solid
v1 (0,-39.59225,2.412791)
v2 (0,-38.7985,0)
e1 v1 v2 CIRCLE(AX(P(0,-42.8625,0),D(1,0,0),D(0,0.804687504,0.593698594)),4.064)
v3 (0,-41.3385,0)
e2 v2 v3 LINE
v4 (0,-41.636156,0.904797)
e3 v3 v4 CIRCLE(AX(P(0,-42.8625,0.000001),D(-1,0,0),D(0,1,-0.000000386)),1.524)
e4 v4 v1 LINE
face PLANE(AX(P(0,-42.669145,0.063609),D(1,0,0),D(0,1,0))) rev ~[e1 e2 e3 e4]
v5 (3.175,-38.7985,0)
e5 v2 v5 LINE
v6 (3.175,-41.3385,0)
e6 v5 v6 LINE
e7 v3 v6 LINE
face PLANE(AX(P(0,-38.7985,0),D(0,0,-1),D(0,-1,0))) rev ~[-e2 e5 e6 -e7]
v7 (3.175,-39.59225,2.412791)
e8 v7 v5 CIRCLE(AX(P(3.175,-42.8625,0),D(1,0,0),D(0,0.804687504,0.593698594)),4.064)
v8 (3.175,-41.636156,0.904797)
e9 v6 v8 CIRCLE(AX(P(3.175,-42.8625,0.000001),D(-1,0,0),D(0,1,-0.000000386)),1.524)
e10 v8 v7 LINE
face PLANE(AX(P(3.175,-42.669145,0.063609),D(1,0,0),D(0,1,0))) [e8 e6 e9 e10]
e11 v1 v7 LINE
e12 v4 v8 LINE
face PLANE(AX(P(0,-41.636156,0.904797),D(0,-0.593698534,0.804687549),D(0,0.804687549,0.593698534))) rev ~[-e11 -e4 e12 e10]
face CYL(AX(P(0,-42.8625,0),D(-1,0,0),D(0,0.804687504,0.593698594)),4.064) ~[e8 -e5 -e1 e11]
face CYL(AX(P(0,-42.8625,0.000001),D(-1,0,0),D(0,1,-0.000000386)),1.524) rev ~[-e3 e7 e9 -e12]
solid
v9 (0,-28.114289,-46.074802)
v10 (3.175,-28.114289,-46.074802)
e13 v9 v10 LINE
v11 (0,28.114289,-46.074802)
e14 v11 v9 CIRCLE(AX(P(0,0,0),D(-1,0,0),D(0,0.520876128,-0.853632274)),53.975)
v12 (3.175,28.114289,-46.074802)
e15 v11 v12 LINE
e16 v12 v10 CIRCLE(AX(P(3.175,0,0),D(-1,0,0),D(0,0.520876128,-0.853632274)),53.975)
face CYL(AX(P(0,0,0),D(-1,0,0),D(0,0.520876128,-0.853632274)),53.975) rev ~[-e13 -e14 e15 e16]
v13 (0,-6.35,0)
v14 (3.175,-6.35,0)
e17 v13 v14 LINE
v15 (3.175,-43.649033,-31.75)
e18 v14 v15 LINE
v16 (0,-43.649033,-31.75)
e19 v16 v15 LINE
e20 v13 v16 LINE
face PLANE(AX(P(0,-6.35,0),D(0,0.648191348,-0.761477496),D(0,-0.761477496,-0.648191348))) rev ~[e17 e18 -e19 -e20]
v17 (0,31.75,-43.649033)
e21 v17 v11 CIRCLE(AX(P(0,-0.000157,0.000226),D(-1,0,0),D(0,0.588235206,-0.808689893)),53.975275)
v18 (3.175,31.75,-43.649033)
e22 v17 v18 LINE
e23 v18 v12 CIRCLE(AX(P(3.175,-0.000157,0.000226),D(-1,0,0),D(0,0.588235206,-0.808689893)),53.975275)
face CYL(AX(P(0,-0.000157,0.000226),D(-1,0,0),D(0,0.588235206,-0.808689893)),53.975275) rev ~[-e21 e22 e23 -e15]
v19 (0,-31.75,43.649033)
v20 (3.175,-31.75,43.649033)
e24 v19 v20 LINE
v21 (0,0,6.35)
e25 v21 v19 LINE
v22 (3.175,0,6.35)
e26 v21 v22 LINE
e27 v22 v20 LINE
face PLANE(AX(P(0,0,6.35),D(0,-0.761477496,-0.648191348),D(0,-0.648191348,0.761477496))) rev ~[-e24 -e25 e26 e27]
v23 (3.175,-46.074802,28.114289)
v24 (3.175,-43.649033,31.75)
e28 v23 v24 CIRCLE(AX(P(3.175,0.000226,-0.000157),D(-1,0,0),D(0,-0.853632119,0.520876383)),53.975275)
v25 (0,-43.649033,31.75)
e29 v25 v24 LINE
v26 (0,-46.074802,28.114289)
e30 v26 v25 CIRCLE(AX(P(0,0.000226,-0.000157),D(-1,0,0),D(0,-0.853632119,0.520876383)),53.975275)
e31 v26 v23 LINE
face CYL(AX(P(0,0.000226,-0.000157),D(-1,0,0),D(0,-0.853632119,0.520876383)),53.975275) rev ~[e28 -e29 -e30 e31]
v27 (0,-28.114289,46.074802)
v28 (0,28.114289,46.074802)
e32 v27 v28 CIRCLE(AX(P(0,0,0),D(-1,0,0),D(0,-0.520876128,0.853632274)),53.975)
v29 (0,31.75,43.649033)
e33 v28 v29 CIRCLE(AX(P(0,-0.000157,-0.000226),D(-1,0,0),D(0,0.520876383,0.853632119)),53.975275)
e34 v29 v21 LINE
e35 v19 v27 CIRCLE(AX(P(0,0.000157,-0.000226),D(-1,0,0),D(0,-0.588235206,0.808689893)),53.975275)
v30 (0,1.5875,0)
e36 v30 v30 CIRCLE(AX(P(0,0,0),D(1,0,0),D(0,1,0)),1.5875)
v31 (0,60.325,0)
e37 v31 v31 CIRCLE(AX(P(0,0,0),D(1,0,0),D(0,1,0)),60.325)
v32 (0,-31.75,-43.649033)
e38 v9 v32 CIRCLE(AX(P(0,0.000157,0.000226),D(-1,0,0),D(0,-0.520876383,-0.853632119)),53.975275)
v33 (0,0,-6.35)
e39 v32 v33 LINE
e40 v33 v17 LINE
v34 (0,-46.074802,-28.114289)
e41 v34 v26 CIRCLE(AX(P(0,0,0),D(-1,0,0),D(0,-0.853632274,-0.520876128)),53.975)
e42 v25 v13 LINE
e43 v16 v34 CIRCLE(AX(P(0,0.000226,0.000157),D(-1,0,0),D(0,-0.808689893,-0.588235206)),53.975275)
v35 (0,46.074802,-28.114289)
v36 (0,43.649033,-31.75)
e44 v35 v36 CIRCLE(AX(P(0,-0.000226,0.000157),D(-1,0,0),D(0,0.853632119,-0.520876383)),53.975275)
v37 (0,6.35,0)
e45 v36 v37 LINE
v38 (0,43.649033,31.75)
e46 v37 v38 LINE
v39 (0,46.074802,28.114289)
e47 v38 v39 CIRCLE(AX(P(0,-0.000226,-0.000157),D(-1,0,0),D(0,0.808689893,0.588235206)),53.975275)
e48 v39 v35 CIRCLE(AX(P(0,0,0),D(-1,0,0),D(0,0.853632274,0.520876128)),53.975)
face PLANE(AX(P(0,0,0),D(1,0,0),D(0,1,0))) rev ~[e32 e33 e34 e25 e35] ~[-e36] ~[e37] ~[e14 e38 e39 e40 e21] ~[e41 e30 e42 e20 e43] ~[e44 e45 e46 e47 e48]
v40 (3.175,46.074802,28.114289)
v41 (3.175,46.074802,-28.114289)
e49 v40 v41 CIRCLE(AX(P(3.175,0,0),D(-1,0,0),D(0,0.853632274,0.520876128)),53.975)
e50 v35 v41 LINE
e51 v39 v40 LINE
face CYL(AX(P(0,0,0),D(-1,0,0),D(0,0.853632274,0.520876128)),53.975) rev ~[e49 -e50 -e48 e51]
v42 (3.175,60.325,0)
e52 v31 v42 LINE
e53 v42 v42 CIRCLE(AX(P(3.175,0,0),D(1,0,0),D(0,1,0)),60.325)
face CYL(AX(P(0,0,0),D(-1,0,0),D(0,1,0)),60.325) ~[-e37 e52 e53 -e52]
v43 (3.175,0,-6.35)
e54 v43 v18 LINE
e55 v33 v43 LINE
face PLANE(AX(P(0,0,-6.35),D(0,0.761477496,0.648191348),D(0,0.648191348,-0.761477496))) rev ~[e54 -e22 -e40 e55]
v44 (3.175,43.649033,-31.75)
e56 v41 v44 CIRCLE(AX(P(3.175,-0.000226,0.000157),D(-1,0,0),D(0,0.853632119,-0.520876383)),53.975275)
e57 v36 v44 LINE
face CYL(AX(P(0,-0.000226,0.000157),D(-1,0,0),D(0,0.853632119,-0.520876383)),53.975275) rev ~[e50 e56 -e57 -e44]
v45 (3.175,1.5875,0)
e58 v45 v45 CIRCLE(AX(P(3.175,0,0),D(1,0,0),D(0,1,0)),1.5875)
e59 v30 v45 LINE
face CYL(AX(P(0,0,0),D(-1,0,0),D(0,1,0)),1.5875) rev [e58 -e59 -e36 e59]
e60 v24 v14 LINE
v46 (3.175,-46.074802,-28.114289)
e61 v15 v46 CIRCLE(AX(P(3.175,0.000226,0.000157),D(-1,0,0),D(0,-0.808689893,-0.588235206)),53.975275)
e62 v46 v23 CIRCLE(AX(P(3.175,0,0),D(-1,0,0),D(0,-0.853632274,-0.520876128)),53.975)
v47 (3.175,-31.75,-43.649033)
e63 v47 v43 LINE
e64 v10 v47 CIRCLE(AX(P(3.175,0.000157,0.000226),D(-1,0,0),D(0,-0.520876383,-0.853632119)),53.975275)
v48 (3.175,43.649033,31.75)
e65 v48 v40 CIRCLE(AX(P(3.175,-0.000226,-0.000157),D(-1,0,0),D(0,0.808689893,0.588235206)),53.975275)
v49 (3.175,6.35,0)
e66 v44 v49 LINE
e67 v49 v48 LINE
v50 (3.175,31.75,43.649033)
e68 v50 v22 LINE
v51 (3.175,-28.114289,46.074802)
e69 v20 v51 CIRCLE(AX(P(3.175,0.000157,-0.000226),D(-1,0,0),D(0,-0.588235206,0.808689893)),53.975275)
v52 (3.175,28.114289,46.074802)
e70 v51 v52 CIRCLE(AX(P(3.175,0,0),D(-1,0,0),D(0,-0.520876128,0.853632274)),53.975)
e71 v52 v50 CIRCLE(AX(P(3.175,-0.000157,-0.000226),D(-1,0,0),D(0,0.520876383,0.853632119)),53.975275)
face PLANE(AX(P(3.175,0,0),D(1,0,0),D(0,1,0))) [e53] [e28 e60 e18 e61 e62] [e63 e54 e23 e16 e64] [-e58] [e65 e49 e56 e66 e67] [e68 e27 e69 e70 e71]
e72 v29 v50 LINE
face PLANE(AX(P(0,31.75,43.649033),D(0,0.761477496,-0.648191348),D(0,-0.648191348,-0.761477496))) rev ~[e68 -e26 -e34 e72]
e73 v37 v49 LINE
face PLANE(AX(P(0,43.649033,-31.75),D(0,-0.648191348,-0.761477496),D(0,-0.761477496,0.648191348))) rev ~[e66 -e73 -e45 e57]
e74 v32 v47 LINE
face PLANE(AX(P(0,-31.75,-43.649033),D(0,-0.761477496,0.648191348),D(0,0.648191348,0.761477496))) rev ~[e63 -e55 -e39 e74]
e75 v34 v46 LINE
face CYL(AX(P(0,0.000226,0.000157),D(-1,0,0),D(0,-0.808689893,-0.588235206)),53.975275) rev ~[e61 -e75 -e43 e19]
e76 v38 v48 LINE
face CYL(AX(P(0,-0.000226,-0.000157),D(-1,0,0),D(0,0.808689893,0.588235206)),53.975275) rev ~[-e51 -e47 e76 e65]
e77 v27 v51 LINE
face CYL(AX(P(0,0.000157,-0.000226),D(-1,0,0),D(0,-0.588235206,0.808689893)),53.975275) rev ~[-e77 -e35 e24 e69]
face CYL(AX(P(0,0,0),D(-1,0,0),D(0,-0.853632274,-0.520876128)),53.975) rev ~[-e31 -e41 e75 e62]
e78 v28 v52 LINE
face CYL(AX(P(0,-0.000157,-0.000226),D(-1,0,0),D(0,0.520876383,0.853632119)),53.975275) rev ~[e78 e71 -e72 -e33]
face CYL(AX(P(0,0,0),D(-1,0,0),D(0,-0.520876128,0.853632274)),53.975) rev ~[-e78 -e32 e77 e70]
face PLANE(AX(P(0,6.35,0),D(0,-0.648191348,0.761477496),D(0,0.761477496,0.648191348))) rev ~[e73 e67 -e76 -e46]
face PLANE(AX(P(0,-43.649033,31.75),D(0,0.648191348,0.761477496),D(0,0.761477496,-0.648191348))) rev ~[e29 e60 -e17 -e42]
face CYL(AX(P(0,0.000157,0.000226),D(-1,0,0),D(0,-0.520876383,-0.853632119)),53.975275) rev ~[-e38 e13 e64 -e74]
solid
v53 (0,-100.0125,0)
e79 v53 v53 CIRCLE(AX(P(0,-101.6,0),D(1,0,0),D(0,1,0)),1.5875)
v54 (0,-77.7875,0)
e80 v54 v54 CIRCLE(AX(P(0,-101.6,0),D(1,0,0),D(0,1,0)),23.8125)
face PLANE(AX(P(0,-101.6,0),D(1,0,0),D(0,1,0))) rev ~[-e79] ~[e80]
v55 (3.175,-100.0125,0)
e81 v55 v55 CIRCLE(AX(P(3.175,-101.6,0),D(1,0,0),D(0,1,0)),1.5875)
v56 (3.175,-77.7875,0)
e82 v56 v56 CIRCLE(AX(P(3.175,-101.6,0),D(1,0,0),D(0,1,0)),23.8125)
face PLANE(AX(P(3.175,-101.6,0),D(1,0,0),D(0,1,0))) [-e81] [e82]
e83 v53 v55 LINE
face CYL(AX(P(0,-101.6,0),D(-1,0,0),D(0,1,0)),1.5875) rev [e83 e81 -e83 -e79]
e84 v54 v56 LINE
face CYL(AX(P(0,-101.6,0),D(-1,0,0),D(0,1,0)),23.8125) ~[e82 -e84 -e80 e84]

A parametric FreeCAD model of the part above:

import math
import FreeCAD as App
import Part
import Sketcher

V = App.Vector
Q = App.Units.Quantity

doc = App.newDocument("Part")
body = doc.addObject("PartDesign::Body", "Body")

sketch1 = body.newObject("Sketcher::SketchObject", "Sketch")
sketch1.AttachmentSupport = (doc.getObject("YZ_Plane"), [""])
sketch1.MapMode = "FlatFace"
sketch1.addGeometry([
    Part.Circle(V(0, 0, 0), V(0, 0, 1), 60.325),
    Part.ArcOfCircle(Part.Circle(V(0.000157, 0.000226, 0), V(0, 0, 1), 53.975275), math.radians(-126.031873), math.radians(-121.391056)),
    Part.LineSegment(V(-31.75, -43.649033, 0), V(0, -6.35, 0)),
    Part.LineSegment(V(0, -6.35, 0), V(31.75, -43.649033, 0)),
    Part.ArcOfCircle(Part.Circle(V(-0.000157, 0.000226, 0), V(0, 0, 1), 53.975275), math.radians(-58.608944), math.radians(-53.968127)),
    Part.ArcOfCircle(Part.Circle(V(0, 0, 0), V(0, 0, 1), 53.975), math.radians(-121.391039), math.radians(-58.608961)),
    Part.ArcOfCircle(Part.Circle(V(0.000226, -0.000157, 0), V(0, 0, 1), 53.975275), math.radians(143.968127), math.radians(148.608944)),
    Part.LineSegment(V(-43.649033, 31.75, 0), V(-6.35, 0, 0)),
    Part.LineSegment(V(-6.35, 0, 0), V(-43.649033, -31.75, 0)),
    Part.ArcOfCircle(Part.Circle(V(0.000226, 0.000157, 0), V(0, 0, 1), 53.975275), math.radians(-148.608944), math.radians(-143.968127)),
    Part.ArcOfCircle(Part.Circle(V(0, 0, 0), V(0, 0, 1), 53.975), math.radians(148.608961), math.radians(211.391039)),
    Part.Circle(V(0, 0, 0), V(0, 0, 1), 1.5875),
    Part.ArcOfCircle(Part.Circle(V(-0.000226, 0.000157, 0), V(0, 0, 1), 53.975275), math.radians(-36.031873), math.radians(-31.391056)),
    Part.LineSegment(V(43.649033, -31.75, 0), V(6.35, 0, 0)),
    Part.LineSegment(V(6.35, 0, 0), V(43.649033, 31.75, 0)),
    Part.ArcOfCircle(Part.Circle(V(-0.000226, -0.000157, 0), V(0, 0, 1), 53.975275), math.radians(31.391056), math.radians(36.031873)),
    Part.ArcOfCircle(Part.Circle(V(0, 0, 0), V(0, 0, 1), 53.975), math.radians(-31.391039), math.radians(31.391039)),
    Part.ArcOfCircle(Part.Circle(V(-0.000157, -0.000226, 0), V(0, 0, 1), 53.975275), math.radians(53.968127), math.radians(58.608944)),
    Part.LineSegment(V(31.75, 43.649033, 0), V(0, 6.35, 0)),
    Part.LineSegment(V(0, 6.35, 0), V(-31.75, 43.649033, 0)),
    Part.ArcOfCircle(Part.Circle(V(0.000157, -0.000226, 0), V(0, 0, 1), 53.975275), math.radians(121.391056), math.radians(126.031873)),
    Part.ArcOfCircle(Part.Circle(V(0, 0, 0), V(0, 0, 1), 53.975), math.radians(58.608961), math.radians(121.391039)),
], False)
sketch1.addConstraint([
    Sketcher.Constraint("Coincident", 1, 1, 2, 1),
    Sketcher.Constraint("Coincident", 2, 2, 3, 1),
    Sketcher.Constraint("Coincident", 3, 2, 4, 2),
    Sketcher.Constraint("Tangent", 4, 1, 5, 2),
    Sketcher.Constraint("Tangent", 5, 1, 1, 2),
    Sketcher.Constraint("Coincident", 6, 1, 7, 1),
    Sketcher.Constraint("Coincident", 7, 2, 8, 1),
    Sketcher.Constraint("Coincident", 8, 2, 9, 2),
    Sketcher.Constraint("Tangent", 9, 1, 10, 2),
    Sketcher.Constraint("Tangent", 10, 1, 6, 2),
    Sketcher.Constraint("Coincident", 12, 1, 13, 1),
    Sketcher.Constraint("Coincident", 13, 2, 14, 1),
    Sketcher.Constraint("Coincident", 14, 2, 15, 2),
    Sketcher.Constraint("Tangent", 15, 1, 16, 2),
    Sketcher.Constraint("Tangent", 16, 1, 12, 2),
    Sketcher.Constraint("Coincident", 17, 1, 18, 1),
    Sketcher.Constraint("Coincident", 18, 2, 19, 1),
    Sketcher.Constraint("Coincident", 19, 2, 20, 2),
    Sketcher.Constraint("Tangent", 20, 1, 21, 2),
    Sketcher.Constraint("Tangent", 21, 1, 17, 2),
    Sketcher.Constraint("Coincident", 0, 3, -1, 1),
    Sketcher.Constraint("Coincident", 5, 3, -1, 1),
    Sketcher.Constraint("Coincident", 10, 3, -1, 1),
    Sketcher.Constraint("Coincident", 11, 3, -1, 1),
    Sketcher.Constraint("Coincident", 16, 3, -1, 1),
    Sketcher.Constraint("Coincident", 21, 3, -1, 1),
    Sketcher.Constraint("Equal", 1, 4),
    Sketcher.Constraint("Equal", 4, 6),
    Sketcher.Constraint("Equal", 6, 9),
    Sketcher.Constraint("Equal", 5, 10),
    Sketcher.Constraint("Equal", 9, 12),
    Sketcher.Constraint("Equal", 12, 15),
    Sketcher.Constraint("Equal", 10, 16),
    Sketcher.Constraint("Equal", 15, 17),
    Sketcher.Constraint("Equal", 17, 20),
    Sketcher.Constraint("Equal", 16, 21),
    Sketcher.Constraint("Symmetric", 7, 2, 13, 2, -1, 1),
    Sketcher.Constraint("Symmetric", 2, 2, 18, 2, -1, 1),
    Sketcher.Constraint("PointOnObject", 2, 2, -2),
    Sketcher.Constraint("PointOnObject", 7, 2, -1),
    Sketcher.Constraint("Perpendicular", 2, 7),
    Sketcher.Constraint("Perpendicular", 3, 8),
    Sketcher.Constraint("Parallel", 7, 13),
    Sketcher.Constraint("Parallel", 8, 14),
    Sketcher.Constraint("Perpendicular", 13, 18),
    Sketcher.Constraint("Perpendicular", 14, 19),
    Sketcher.Constraint("Horizontal", 1, 1, 3, 2),
    Sketcher.Constraint("Horizontal", 4, 1, 5, 1),
    Sketcher.Constraint("Horizontal", 10, 1, 15, 1),
    Sketcher.Constraint("Horizontal", 9, 1, 16, 1),
    Sketcher.Constraint("Horizontal", 20, 1, 21, 1),
    Sketcher.Constraint("Vertical", 9, 1, 10, 1),
    Sketcher.Constraint("Vertical", 5, 1, 20, 1),
    Sketcher.Constraint("Equal", 3, 7),
    Sketcher.Constraint("Diameter", 0, Q("4.75 in")),
    Sketcher.Constraint("Diameter", 11, Q("0.125 in")),
    Sketcher.Constraint("Radius", 5, Q("2.125 in")),
    Sketcher.Constraint("DistanceY", 8, 2, 2, 2, Q("1 in")),
    Sketcher.Constraint("DistanceX", 1, 1, -1, 1, Q("1.25 in")),
    Sketcher.Constraint("Radius", 1, Q("53.975275 mm")),
    Sketcher.Constraint("DistanceY", 4, 1, -1, 1, Q("46.074802 mm")),
    Sketcher.Constraint("DistanceX", 9, 1, -1, 1, Q("46.074802 mm")),
])
pad1 = body.newObject("PartDesign::Pad", "Pad")
pad1.Profile = sketch1
pad1.Length = Q("0.125 in")
body2 = doc.addObject("PartDesign::Body", "Body001")

sketch2 = body2.newObject("Sketcher::SketchObject", "Sketch001")
sketch2.AttachmentSupport = (doc.getObject("YZ_Plane001"), [""])
sketch2.MapMode = "FlatFace"
sketch2.addGeometry([
    Part.Circle(V(-101.6, 0, 0), V(0, 0, 1), 23.8125),
    Part.Circle(V(-101.6, 0, 0), V(0, 0, 1), 1.5875),
], False)
sketch2.addConstraint([
    Sketcher.Constraint("Coincident", 1, 3, 0, 3),
    Sketcher.Constraint("PointOnObject", 0, 3, -1),
    Sketcher.Constraint("Diameter", 0, Q("1.875 in")),
    Sketcher.Constraint("Diameter", 1, Q("0.125 in")),
    Sketcher.Constraint("DistanceX", 0, 3, -1, 1, Q("4 in")),
])
pad2 = body2.newObject("PartDesign::Pad", "Pad001")
pad2.Profile = sketch2
pad2.Length = Q("0.125 in")
body3 = doc.addObject("PartDesign::Body", "Body002")

sketch3 = body3.newObject("Sketcher::SketchObject", "Sketch002")
sketch3.AttachmentSupport = (doc.getObject("YZ_Plane002"), [""])
sketch3.MapMode = "FlatFace"
sketch3.addGeometry([
    Part.LineSegment(V(-38.7985, 0, 0), V(-41.3385, 0, 0)),
    Part.ArcOfCircle(Part.Circle(V(-42.8625, 0.000001, 0), V(0, 0, 1), 1.524), math.radians(36.419895), math.radians(359.999978)),
    Part.LineSegment(V(-41.636156, 0.904797, 0), V(-39.59225, 2.412791, 0)),
    Part.ArcOfCircle(Part.Circle(V(-42.8625, 0, 0), V(0, 0, 1), 4.064), math.radians(36.419913), math.radians(360.000002)),
], False)
sketch3.addConstraint([
    Sketcher.Constraint("Coincident", 0, 2, 1, 2),
    Sketcher.Constraint("Coincident", 1, 1, 2, 1),
    Sketcher.Constraint("Coincident", 2, 2, 3, 1),
    Sketcher.Constraint("Coincident", 3, 2, 0, 1),
    Sketcher.Constraint("Horizontal", 0),
    Sketcher.Constraint("Coincident", 3, 3, 1, 3),
    Sketcher.Constraint("PointOnObject", 1, 3, -1),
    Sketcher.Constraint("PointOnObject", 0, 2, -1),
    Sketcher.Constraint("Radius", 1, Q("0.06 in")),
    Sketcher.Constraint("Radius", 3, Q("0.16 in")),
    Sketcher.Constraint("DistanceX", 1, 3, -1, 1, Q("1.6875 in")),
    Sketcher.Constraint("DistanceX", 2, 2, 3, 2, Q("0.03125 in")),
    Sketcher.Constraint("DistanceX", 1, 1, -1, 1, Q("41.636156 mm")),
])
pad3 = body3.newObject("PartDesign::Pad", "Pad002")
pad3.Profile = sketch3
pad3.Length = Q("0.125 in")

doc.recompute()
